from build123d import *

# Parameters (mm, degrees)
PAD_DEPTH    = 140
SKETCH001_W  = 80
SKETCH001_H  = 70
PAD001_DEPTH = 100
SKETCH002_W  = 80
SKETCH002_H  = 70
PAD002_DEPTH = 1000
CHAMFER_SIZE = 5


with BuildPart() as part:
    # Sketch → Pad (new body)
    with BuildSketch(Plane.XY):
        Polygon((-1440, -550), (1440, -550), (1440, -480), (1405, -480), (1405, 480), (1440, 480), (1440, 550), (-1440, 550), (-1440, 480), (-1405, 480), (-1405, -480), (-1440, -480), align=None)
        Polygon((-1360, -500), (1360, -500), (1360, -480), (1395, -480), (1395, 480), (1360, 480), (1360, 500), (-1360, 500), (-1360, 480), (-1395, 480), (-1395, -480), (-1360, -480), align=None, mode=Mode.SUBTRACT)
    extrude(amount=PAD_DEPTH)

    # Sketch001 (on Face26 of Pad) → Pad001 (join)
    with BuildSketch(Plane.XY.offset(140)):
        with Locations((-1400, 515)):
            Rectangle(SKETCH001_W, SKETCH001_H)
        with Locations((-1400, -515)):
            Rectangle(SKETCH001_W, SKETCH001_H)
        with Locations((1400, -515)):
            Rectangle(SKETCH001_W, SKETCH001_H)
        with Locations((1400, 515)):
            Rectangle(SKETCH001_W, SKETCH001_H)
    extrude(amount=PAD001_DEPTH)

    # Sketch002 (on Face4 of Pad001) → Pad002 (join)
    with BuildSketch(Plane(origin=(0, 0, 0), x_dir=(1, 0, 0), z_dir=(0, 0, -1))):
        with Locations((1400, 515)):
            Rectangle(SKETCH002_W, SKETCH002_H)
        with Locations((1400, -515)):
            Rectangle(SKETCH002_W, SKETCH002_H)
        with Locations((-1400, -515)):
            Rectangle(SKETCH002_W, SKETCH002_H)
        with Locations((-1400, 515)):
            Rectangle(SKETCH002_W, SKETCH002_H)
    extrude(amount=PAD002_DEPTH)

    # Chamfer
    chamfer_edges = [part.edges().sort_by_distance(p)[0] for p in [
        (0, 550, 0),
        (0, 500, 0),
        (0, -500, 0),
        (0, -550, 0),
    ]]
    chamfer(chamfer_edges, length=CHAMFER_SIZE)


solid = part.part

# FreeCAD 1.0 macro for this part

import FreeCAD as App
import Part
import Sketcher
from FreeCAD import Vector


def edges_at(feature, points):
    """Names of the edges that pass closest to the given points."""
    edges = feature.Shape.Edges
    near = lambda p: min(range(len(edges)), key=lambda i: edges[i].distToShape(Part.Vertex(*p))[0])
    return sorted({f"Edge{near(p) + 1}" for p in points})


def add_polygon(sketch, points):
    """Adds a closed chain of lines whose ends are joined by coincident constraints."""
    first, n = sketch.GeometryCount, len(points)
    for a, b in zip(points, points[1:] + points[:1]):
        sketch.addGeometry(Part.LineSegment(App.Vector(*a, 0), App.Vector(*b, 0)), False)
    for i in range(n):
        sketch.addConstraint(Sketcher.Constraint("Coincident", first + i, 2, first + (i + 1) % n, 1))

doc = App.newDocument("Part")
body = doc.addObject("PartDesign::Body", "Body")

# Sketch on XY plane
sketch1 = body.newObject("Sketcher::SketchObject", "Sketch")
sketch1.AttachmentSupport = (doc.getObject("XY_Plane"), [""])
sketch1.MapMode = "FlatFace"
add_polygon(sketch1, [(-1440, -550), (1440, -550), (1440, -480), (1405, -480), (1405, 480), (1440, 480), (1440, 550), (-1440, 550), (-1440, 480), (-1405, 480), (-1405, -480), (-1440, -480)])  # lines 0-11
add_polygon(sketch1, [(1360, -500), (-1360, -500), (-1360, -480), (-1395, -480), (-1395, 480), (-1360, 480), (-1360, 500), (1360, 500), (1360, 480), (1395, 480), (1395, -480), (1360, -480)])  # lines 12-23
sketch1.addConstraint(Sketcher.Constraint("Horizontal", 0))
sketch1.addConstraint(Sketcher.Constraint("Vertical", 1))
sketch1.addConstraint(Sketcher.Constraint("Horizontal", 2))
sketch1.addConstraint(Sketcher.Constraint("Vertical", 3))
sketch1.addConstraint(Sketcher.Constraint("Horizontal", 4))
sketch1.addConstraint(Sketcher.Constraint("Vertical", 5))
sketch1.addConstraint(Sketcher.Constraint("Horizontal", 6))
sketch1.addConstraint(Sketcher.Constraint("Vertical", 7))
sketch1.addConstraint(Sketcher.Constraint("Horizontal", 8))
sketch1.addConstraint(Sketcher.Constraint("Vertical", 9))
sketch1.addConstraint(Sketcher.Constraint("Horizontal", 10))
sketch1.addConstraint(Sketcher.Constraint("Vertical", 11))
sketch1.addConstraint(Sketcher.Constraint("Horizontal", 12))
sketch1.addConstraint(Sketcher.Constraint("Vertical", 13))
sketch1.addConstraint(Sketcher.Constraint("Horizontal", 14))
sketch1.addConstraint(Sketcher.Constraint("Vertical", 15))
sketch1.addConstraint(Sketcher.Constraint("Horizontal", 16))
sketch1.addConstraint(Sketcher.Constraint("Vertical", 17))
sketch1.addConstraint(Sketcher.Constraint("Horizontal", 18))
sketch1.addConstraint(Sketcher.Constraint("Vertical", 19))
sketch1.addConstraint(Sketcher.Constraint("Horizontal", 20))
sketch1.addConstraint(Sketcher.Constraint("Vertical", 21))
sketch1.addConstraint(Sketcher.Constraint("Horizontal", 22))
sketch1.addConstraint(Sketcher.Constraint("Vertical", 23))
sketch1.addConstraint(Sketcher.Constraint("Symmetric", 0, 2, 6, 2, -1, 1))
sketch1.addConstraint(Sketcher.Constraint("Symmetric", 2, 2, 8, 2, -1, 1))
sketch1.addConstraint(Sketcher.Constraint("Symmetric", 4, 2, 10, 2, -1, 1))
sketch1.addConstraint(Sketcher.Constraint("Symmetric", 12, 2, 18, 2, -1, 1))
sketch1.addConstraint(Sketcher.Constraint("Symmetric", 14, 2, 20, 2, -1, 1))
sketch1.addConstraint(Sketcher.Constraint("Symmetric", 16, 2, 22, 2, -1, 1))
sketch1.addConstraint(Sketcher.Constraint("Symmetric", 4, 2, 7, 2, -2))
sketch1.addConstraint(Sketcher.Constraint("Symmetric", 16, 2, 19, 2, -2))
sketch1.addConstraint(Sketcher.Constraint("Horizontal", 10, 2, 13, 2))
sketch1.addConstraint(Sketcher.Constraint("Equal", 10, 14))
sketch1.addConstraint(Sketcher.Constraint("DistanceX", 0, 1, 0, 2, 2880.0))
sketch1.addConstraint(Sketcher.Constraint("DistanceX", 2, 2, 2, 1, 35.0))
sketch1.addConstraint(Sketcher.Constraint("DistanceX", 12, 2, 12, 1, 2720.0))
sketch1.addConstraint(Sketcher.Constraint("DistanceY", 1, 1, 1, 2, 70.0))
sketch1.addConstraint(Sketcher.Constraint("DistanceY", 3, 1, 3, 2, 960.0))
sketch1.addConstraint(Sketcher.Constraint("DistanceY", 13, 1, 13, 2, 20.0))
pad1 = body.newObject("PartDesign::Pad", "Pad")
pad1.Profile = sketch1
pad1.Length = 140

# Sketch on XY plane
sketch2 = body.newObject("Sketcher::SketchObject", "Sketch001")
sketch2.AttachmentSupport = (doc.getObject("XY_Plane"), [""])
sketch2.MapMode = "FlatFace"
sketch2.AttachmentOffset = App.Placement(Vector(0, 0, 140), App.Rotation())
add_polygon(sketch2, [(-1440, 550), (-1440, 480), (-1360, 480), (-1360, 550)])  # lines 0-3
add_polygon(sketch2, [(-1440, -480), (-1440, -550), (-1360, -550), (-1360, -480)])  # lines 4-7
add_polygon(sketch2, [(1360, -480), (1360, -550), (1440, -550), (1440, -480)])  # lines 8-11
add_polygon(sketch2, [(1360, 550), (1360, 480), (1440, 480), (1440, 550)])  # lines 12-15
sketch2.addConstraint(Sketcher.Constraint("Vertical", 0))
sketch2.addConstraint(Sketcher.Constraint("Horizontal", 1))
sketch2.addConstraint(Sketcher.Constraint("Vertical", 2))
sketch2.addConstraint(Sketcher.Constraint("Horizontal", 3))
sketch2.addConstraint(Sketcher.Constraint("Vertical", 4))
sketch2.addConstraint(Sketcher.Constraint("Horizontal", 5))
sketch2.addConstraint(Sketcher.Constraint("Vertical", 6))
sketch2.addConstraint(Sketcher.Constraint("Horizontal", 7))
sketch2.addConstraint(Sketcher.Constraint("Vertical", 8))
sketch2.addConstraint(Sketcher.Constraint("Horizontal", 9))
sketch2.addConstraint(Sketcher.Constraint("Vertical", 10))
sketch2.addConstraint(Sketcher.Constraint("Horizontal", 11))
sketch2.addConstraint(Sketcher.Constraint("Vertical", 12))
sketch2.addConstraint(Sketcher.Constraint("Horizontal", 13))
sketch2.addConstraint(Sketcher.Constraint("Vertical", 14))
sketch2.addConstraint(Sketcher.Constraint("Horizontal", 15))
sketch2.addConstraint(Sketcher.Constraint("Symmetric", 2, 2, 8, 2, -1, 1))
sketch2.addConstraint(Sketcher.Constraint("Symmetric", 0, 2, 10, 2, -1, 1))
sketch2.addConstraint(Sketcher.Constraint("Symmetric", 6, 2, 12, 2, -1, 1))
sketch2.addConstraint(Sketcher.Constraint("Symmetric", 4, 2, 14, 2, -1, 1))
sketch2.addConstraint(Sketcher.Constraint("Symmetric", 5, 2, 8, 2, -2))
sketch2.addConstraint(Sketcher.Constraint("Symmetric", 7, 2, 10, 2, -2))
sketch2.addConstraint(Sketcher.Constraint("DistanceX", 1, 1, 1, 2, 80.0))
sketch2.addConstraint(Sketcher.Constraint("DistanceY", 0, 2, 0, 1, 70.0))
sketch2.addConstraint(Sketcher.Constraint("DistanceX", 0, 2, -1, 1, 1440.0))
sketch2.addConstraint(Sketcher.Constraint("DistanceY", -1, 1, 0, 2, 480.0))
pad2 = body.newObject("PartDesign::Pad", "Pad001")
pad2.Profile = sketch2
pad2.Length = 100

# Sketch on XY plane
sketch3 = body.newObject("Sketcher::SketchObject", "Sketch002")
sketch3.AttachmentSupport = (doc.getObject("XY_Plane"), [""])
sketch3.MapMode = "FlatFace"
add_polygon(sketch3, [(1360, -550), (1360, -480), (1440, -480), (1440, -550)])  # lines 0-3
add_polygon(sketch3, [(1360, 480), (1360, 550), (1440, 550), (1440, 480)])  # lines 4-7
add_polygon(sketch3, [(-1440, 480), (-1440, 550), (-1360, 550), (-1360, 480)])  # lines 8-11
add_polygon(sketch3, [(-1440, -550), (-1440, -480), (-1360, -480), (-1360, -550)])  # lines 12-15
sketch3.addConstraint(Sketcher.Constraint("Vertical", 0))
sketch3.addConstraint(Sketcher.Constraint("Horizontal", 1))
sketch3.addConstraint(Sketcher.Constraint("Vertical", 2))
sketch3.addConstraint(Sketcher.Constraint("Horizontal", 3))
sketch3.addConstraint(Sketcher.Constraint("Vertical", 4))
sketch3.addConstraint(Sketcher.Constraint("Horizontal", 5))
sketch3.addConstraint(Sketcher.Constraint("Vertical", 6))
sketch3.addConstraint(Sketcher.Constraint("Horizontal", 7))
sketch3.addConstraint(Sketcher.Constraint("Vertical", 8))
sketch3.addConstraint(Sketcher.Constraint("Horizontal", 9))
sketch3.addConstraint(Sketcher.Constraint("Vertical", 10))
sketch3.addConstraint(Sketcher.Constraint("Horizontal", 11))
sketch3.addConstraint(Sketcher.Constraint("Vertical", 12))
sketch3.addConstraint(Sketcher.Constraint("Horizontal", 13))
sketch3.addConstraint(Sketcher.Constraint("Vertical", 14))
sketch3.addConstraint(Sketcher.Constraint("Horizontal", 15))
sketch3.addConstraint(Sketcher.Constraint("Symmetric", 2, 2, 8, 2, -1, 1))
sketch3.addConstraint(Sketcher.Constraint("Symmetric", 0, 2, 10, 2, -1, 1))
sketch3.addConstraint(Sketcher.Constraint("Symmetric", 6, 2, 12, 2, -1, 1))
sketch3.addConstraint(Sketcher.Constraint("Symmetric", 4, 2, 14, 2, -1, 1))
sketch3.addConstraint(Sketcher.Constraint("Symmetric", 5, 2, 8, 2, -2))
sketch3.addConstraint(Sketcher.Constraint("Symmetric", 7, 2, 10, 2, -2))
sketch3.addConstraint(Sketcher.Constraint("DistanceX", 1, 1, 1, 2, 80.0))
sketch3.addConstraint(Sketcher.Constraint("DistanceY", 0, 1, 0, 2, 70.0))
sketch3.addConstraint(Sketcher.Constraint("DistanceX", -1, 1, 0, 2, 1360.0))
sketch3.addConstraint(Sketcher.Constraint("DistanceY", 0, 2, -1, 1, 480.0))
pad3 = body.newObject("PartDesign::Pad", "Pad002")
pad3.Profile = sketch3
pad3.Length = 1000
pad3.Reversed = True
doc.recompute()

chamfer = body.newObject("PartDesign::Chamfer", "Chamfer")
chamfer.Base = (pad3, edges_at(pad3, [
    (0, 550, 0),
    (0, 500, 0),
    (0, -500, 0),
    (0, -550, 0),
]))
chamfer.Size = 5

doc.recompute()
